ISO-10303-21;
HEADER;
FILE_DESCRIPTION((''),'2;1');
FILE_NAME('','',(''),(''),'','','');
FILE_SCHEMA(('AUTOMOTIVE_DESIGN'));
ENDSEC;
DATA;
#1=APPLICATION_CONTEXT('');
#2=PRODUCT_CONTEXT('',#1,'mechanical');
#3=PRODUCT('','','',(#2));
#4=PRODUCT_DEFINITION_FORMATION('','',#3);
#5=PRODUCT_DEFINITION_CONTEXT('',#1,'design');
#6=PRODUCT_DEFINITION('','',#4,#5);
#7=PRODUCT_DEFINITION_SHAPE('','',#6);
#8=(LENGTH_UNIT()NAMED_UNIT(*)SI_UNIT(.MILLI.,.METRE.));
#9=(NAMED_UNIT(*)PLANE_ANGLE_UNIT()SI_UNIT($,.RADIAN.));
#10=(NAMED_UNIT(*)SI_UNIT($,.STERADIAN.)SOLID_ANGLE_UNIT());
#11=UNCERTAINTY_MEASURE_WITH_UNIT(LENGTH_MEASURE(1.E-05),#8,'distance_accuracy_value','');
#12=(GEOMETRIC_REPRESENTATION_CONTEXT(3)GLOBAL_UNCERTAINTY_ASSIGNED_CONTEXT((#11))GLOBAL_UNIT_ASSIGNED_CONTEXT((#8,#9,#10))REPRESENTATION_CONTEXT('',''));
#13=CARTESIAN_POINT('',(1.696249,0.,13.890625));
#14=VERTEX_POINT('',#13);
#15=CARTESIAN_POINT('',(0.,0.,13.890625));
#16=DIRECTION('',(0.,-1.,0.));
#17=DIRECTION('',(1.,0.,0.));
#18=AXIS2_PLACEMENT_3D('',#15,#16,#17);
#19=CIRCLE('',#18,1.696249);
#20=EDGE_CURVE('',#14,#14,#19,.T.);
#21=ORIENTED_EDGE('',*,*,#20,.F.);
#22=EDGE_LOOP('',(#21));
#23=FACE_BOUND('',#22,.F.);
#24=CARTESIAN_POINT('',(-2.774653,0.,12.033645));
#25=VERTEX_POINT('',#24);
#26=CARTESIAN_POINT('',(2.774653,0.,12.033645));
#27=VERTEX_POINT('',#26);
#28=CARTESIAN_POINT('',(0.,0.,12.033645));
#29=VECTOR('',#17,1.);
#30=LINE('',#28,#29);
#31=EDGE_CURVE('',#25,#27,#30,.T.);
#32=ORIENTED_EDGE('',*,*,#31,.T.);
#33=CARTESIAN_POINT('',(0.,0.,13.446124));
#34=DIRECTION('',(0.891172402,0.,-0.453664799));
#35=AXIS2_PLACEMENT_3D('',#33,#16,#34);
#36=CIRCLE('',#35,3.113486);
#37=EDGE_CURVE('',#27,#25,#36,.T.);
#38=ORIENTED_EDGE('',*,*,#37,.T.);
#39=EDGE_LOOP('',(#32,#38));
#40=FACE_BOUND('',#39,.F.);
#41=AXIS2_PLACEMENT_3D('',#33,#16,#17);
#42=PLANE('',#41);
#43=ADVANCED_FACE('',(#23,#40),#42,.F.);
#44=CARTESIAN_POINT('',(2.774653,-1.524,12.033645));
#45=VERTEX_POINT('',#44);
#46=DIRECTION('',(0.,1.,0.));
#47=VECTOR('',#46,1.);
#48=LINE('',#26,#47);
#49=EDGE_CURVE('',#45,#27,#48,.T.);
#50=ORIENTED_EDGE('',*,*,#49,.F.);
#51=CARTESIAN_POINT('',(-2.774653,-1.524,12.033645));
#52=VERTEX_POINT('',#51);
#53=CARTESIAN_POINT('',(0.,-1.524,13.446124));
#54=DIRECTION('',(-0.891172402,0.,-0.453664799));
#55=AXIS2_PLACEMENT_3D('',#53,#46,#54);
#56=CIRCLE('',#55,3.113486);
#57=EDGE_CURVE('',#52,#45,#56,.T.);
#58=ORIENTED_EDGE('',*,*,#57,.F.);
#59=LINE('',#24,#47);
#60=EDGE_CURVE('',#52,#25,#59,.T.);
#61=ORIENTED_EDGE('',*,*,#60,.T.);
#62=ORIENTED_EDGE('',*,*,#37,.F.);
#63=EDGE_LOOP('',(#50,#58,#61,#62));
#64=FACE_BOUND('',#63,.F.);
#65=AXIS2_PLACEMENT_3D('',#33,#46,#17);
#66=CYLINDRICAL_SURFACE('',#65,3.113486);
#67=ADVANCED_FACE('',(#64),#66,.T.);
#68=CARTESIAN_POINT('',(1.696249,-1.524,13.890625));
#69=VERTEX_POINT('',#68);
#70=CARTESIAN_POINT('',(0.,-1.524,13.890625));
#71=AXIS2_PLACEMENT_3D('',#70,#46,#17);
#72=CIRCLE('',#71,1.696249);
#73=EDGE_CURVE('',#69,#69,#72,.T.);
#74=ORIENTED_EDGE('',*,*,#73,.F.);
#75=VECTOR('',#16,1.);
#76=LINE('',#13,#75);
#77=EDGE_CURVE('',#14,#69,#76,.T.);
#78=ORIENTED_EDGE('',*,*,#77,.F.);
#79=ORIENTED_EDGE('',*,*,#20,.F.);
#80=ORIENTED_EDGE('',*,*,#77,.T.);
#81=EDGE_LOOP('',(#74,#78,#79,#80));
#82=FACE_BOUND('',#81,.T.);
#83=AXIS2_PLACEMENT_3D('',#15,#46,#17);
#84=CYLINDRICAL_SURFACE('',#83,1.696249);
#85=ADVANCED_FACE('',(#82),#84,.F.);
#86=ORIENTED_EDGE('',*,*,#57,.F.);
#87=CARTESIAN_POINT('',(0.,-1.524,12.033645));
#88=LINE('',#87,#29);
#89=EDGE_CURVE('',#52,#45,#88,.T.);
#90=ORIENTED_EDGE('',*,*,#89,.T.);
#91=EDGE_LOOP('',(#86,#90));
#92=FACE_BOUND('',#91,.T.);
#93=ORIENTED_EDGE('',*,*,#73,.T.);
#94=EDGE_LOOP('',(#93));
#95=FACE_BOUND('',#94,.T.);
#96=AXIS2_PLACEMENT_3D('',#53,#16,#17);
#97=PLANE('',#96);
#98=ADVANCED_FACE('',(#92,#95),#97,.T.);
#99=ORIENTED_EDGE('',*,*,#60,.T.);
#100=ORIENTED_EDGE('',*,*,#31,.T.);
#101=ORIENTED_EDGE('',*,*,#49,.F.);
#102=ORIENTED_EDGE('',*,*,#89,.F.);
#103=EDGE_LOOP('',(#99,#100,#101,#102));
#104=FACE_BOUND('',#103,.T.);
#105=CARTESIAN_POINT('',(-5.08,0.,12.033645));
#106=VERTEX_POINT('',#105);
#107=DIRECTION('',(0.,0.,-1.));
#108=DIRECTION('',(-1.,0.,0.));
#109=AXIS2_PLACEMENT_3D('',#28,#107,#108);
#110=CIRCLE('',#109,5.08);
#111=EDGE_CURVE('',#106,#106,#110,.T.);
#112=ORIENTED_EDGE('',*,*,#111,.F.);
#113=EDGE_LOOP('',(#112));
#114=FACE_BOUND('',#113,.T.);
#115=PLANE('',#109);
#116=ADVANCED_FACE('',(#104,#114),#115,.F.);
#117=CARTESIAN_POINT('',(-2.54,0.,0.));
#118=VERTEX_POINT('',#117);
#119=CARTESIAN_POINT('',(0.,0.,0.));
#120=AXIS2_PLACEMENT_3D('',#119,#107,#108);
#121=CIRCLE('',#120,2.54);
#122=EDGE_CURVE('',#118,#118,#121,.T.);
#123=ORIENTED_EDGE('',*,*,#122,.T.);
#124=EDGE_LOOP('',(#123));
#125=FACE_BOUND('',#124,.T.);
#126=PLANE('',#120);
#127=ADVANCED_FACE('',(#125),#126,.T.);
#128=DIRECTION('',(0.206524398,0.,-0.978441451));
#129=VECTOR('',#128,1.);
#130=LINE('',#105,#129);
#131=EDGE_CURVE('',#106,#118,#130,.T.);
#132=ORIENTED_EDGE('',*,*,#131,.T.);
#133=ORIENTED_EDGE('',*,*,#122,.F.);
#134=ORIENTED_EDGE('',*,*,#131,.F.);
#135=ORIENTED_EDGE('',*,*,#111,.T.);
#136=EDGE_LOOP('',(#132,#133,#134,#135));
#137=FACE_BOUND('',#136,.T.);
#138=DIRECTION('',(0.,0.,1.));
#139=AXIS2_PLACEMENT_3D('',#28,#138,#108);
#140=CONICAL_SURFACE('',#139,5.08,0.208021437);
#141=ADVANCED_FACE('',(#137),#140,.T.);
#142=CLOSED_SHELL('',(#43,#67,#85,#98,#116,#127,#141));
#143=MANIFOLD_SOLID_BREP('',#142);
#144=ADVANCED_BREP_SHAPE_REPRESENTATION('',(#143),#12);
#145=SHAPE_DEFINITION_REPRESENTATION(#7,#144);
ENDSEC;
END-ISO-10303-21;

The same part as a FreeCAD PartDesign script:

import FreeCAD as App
import Part
import Sketcher
from FreeCAD import Vector
Q = App.Units.Quantity


def add_polygon(sketch, points):
    """Adds a closed chain of lines whose ends are joined by coincident constraints."""
    first, n = sketch.GeometryCount, len(points)
    for a, b in zip(points, points[1:] + points[:1]):
        sketch.addGeometry(Part.LineSegment(App.Vector(*a, 0), App.Vector(*b, 0)), False)
    for i in range(n):
        sketch.addConstraint(Sketcher.Constraint("Coincident", first + i, 2, first + (i + 1) % n, 1))

doc = App.newDocument("Part")
body = doc.addObject("PartDesign::Body", "Body")

sketch1 = doc.addObject("Sketcher::SketchObject", "Sketch")
body.addObject(sketch1)
sketch1.AttachmentSupport = (doc.XZ_Plane, [""])
sketch1.MapMode = "FlatFace"
add_polygon(sketch1, [(-2.5, 0), (0, 0), (0, 12), (-5.1, 12)])
sketch1.addConstraint([
    Sketcher.Constraint("Horizontal", 0),
    Sketcher.Constraint("Vertical", 1),
    Sketcher.Constraint("Horizontal", 2),
    Sketcher.Constraint("Coincident", 0, 2, -1, 1),
    Sketcher.Constraint("DistanceX", 0, 1, 0, 2, Q("0.1 in")),
    Sketcher.Constraint("DistanceX", 2, 2, 2, 1, Q("0.2 in")),
    Sketcher.Constraint("Distance", 3, Q("12.298789 mm")),
])
revolution = doc.addObject("PartDesign::Revolution", "Revolution")
body.addObject(revolution)
revolution.Profile = sketch1
revolution.ReferenceAxis = (sketch1, ["V_Axis"])
revolution.Angle = 360

sketch2 = doc.addObject("Sketcher::SketchObject", "Sketch001")
body.addObject(sketch2)
sketch2.AttachmentSupport = (doc.YZ_Plane, [""])
sketch2.MapMode = "FlatFace"
sketch2.addGeometry(Part.Circle(Vector(0, 19.66, 0), Vector(0, 0, 1), 0.06), False)
sketch2.addConstraint([
    Sketcher.Constraint("PointOnObject", 0, 3, -2),
    Sketcher.Constraint("Diameter", 0, Q("0.115078 mm")),
    Sketcher.Constraint("DistanceY", -1, 1, 0, 3, Q("19.658387 mm")),
])
pocket1 = doc.addObject("PartDesign::Pocket", "Pocket")
body.addObject(pocket1)
pocket1.Profile = sketch2
pocket1.Length = Q("1 in")
pocket1.Midplane = True

sketch3 = doc.addObject("Sketcher::SketchObject", "Sketch002")
body.addObject(sketch3)
sketch3.AttachmentSupport = (doc.XZ_Plane, [""])
sketch3.MapMode = "FlatFace"
sketch3.addGeometry(Part.Circle(Vector(0, 13.4, 0), Vector(0, 0, 1), 3.1), False)
sketch3.addConstraint([
    Sketcher.Constraint("PointOnObject", 0, 3, -2),
    Sketcher.Constraint("Diameter", 0, Q("6.226972 mm")),
    Sketcher.Constraint("DistanceY", -1, 1, 0, 3, Q("13.446124 mm")),
])
pad1 = doc.addObject("PartDesign::Pad", "Pad")
body.addObject(pad1)
pad1.Profile = sketch3
pad1.Length = Q("0.06 in")

sketch4 = doc.addObject("Sketcher::SketchObject", "Sketch003")
body.addObject(sketch4)
sketch4.AttachmentSupport = (doc.XZ_Plane, [""])
sketch4.MapMode = "FlatFace"
sketch4.addGeometry(Part.Circle(Vector(0, 13.9, 0), Vector(0, 0, 1), 1.7), False)
sketch4.addConstraint([
    Sketcher.Constraint("PointOnObject", 0, 3, -2),
    Sketcher.Constraint("DistanceY", -1, 1, 0, 3, Q("0.546875 in")),
    Sketcher.Constraint("Diameter", 0, Q("3.392498 mm")),
])
pocket2 = doc.addObject("PartDesign::Pocket", "Pocket001")
body.addObject(pocket2)
pocket2.Profile = sketch4
pocket2.Length = Q("1.08 in")
pocket2.Reversed = True

doc.recompute()
